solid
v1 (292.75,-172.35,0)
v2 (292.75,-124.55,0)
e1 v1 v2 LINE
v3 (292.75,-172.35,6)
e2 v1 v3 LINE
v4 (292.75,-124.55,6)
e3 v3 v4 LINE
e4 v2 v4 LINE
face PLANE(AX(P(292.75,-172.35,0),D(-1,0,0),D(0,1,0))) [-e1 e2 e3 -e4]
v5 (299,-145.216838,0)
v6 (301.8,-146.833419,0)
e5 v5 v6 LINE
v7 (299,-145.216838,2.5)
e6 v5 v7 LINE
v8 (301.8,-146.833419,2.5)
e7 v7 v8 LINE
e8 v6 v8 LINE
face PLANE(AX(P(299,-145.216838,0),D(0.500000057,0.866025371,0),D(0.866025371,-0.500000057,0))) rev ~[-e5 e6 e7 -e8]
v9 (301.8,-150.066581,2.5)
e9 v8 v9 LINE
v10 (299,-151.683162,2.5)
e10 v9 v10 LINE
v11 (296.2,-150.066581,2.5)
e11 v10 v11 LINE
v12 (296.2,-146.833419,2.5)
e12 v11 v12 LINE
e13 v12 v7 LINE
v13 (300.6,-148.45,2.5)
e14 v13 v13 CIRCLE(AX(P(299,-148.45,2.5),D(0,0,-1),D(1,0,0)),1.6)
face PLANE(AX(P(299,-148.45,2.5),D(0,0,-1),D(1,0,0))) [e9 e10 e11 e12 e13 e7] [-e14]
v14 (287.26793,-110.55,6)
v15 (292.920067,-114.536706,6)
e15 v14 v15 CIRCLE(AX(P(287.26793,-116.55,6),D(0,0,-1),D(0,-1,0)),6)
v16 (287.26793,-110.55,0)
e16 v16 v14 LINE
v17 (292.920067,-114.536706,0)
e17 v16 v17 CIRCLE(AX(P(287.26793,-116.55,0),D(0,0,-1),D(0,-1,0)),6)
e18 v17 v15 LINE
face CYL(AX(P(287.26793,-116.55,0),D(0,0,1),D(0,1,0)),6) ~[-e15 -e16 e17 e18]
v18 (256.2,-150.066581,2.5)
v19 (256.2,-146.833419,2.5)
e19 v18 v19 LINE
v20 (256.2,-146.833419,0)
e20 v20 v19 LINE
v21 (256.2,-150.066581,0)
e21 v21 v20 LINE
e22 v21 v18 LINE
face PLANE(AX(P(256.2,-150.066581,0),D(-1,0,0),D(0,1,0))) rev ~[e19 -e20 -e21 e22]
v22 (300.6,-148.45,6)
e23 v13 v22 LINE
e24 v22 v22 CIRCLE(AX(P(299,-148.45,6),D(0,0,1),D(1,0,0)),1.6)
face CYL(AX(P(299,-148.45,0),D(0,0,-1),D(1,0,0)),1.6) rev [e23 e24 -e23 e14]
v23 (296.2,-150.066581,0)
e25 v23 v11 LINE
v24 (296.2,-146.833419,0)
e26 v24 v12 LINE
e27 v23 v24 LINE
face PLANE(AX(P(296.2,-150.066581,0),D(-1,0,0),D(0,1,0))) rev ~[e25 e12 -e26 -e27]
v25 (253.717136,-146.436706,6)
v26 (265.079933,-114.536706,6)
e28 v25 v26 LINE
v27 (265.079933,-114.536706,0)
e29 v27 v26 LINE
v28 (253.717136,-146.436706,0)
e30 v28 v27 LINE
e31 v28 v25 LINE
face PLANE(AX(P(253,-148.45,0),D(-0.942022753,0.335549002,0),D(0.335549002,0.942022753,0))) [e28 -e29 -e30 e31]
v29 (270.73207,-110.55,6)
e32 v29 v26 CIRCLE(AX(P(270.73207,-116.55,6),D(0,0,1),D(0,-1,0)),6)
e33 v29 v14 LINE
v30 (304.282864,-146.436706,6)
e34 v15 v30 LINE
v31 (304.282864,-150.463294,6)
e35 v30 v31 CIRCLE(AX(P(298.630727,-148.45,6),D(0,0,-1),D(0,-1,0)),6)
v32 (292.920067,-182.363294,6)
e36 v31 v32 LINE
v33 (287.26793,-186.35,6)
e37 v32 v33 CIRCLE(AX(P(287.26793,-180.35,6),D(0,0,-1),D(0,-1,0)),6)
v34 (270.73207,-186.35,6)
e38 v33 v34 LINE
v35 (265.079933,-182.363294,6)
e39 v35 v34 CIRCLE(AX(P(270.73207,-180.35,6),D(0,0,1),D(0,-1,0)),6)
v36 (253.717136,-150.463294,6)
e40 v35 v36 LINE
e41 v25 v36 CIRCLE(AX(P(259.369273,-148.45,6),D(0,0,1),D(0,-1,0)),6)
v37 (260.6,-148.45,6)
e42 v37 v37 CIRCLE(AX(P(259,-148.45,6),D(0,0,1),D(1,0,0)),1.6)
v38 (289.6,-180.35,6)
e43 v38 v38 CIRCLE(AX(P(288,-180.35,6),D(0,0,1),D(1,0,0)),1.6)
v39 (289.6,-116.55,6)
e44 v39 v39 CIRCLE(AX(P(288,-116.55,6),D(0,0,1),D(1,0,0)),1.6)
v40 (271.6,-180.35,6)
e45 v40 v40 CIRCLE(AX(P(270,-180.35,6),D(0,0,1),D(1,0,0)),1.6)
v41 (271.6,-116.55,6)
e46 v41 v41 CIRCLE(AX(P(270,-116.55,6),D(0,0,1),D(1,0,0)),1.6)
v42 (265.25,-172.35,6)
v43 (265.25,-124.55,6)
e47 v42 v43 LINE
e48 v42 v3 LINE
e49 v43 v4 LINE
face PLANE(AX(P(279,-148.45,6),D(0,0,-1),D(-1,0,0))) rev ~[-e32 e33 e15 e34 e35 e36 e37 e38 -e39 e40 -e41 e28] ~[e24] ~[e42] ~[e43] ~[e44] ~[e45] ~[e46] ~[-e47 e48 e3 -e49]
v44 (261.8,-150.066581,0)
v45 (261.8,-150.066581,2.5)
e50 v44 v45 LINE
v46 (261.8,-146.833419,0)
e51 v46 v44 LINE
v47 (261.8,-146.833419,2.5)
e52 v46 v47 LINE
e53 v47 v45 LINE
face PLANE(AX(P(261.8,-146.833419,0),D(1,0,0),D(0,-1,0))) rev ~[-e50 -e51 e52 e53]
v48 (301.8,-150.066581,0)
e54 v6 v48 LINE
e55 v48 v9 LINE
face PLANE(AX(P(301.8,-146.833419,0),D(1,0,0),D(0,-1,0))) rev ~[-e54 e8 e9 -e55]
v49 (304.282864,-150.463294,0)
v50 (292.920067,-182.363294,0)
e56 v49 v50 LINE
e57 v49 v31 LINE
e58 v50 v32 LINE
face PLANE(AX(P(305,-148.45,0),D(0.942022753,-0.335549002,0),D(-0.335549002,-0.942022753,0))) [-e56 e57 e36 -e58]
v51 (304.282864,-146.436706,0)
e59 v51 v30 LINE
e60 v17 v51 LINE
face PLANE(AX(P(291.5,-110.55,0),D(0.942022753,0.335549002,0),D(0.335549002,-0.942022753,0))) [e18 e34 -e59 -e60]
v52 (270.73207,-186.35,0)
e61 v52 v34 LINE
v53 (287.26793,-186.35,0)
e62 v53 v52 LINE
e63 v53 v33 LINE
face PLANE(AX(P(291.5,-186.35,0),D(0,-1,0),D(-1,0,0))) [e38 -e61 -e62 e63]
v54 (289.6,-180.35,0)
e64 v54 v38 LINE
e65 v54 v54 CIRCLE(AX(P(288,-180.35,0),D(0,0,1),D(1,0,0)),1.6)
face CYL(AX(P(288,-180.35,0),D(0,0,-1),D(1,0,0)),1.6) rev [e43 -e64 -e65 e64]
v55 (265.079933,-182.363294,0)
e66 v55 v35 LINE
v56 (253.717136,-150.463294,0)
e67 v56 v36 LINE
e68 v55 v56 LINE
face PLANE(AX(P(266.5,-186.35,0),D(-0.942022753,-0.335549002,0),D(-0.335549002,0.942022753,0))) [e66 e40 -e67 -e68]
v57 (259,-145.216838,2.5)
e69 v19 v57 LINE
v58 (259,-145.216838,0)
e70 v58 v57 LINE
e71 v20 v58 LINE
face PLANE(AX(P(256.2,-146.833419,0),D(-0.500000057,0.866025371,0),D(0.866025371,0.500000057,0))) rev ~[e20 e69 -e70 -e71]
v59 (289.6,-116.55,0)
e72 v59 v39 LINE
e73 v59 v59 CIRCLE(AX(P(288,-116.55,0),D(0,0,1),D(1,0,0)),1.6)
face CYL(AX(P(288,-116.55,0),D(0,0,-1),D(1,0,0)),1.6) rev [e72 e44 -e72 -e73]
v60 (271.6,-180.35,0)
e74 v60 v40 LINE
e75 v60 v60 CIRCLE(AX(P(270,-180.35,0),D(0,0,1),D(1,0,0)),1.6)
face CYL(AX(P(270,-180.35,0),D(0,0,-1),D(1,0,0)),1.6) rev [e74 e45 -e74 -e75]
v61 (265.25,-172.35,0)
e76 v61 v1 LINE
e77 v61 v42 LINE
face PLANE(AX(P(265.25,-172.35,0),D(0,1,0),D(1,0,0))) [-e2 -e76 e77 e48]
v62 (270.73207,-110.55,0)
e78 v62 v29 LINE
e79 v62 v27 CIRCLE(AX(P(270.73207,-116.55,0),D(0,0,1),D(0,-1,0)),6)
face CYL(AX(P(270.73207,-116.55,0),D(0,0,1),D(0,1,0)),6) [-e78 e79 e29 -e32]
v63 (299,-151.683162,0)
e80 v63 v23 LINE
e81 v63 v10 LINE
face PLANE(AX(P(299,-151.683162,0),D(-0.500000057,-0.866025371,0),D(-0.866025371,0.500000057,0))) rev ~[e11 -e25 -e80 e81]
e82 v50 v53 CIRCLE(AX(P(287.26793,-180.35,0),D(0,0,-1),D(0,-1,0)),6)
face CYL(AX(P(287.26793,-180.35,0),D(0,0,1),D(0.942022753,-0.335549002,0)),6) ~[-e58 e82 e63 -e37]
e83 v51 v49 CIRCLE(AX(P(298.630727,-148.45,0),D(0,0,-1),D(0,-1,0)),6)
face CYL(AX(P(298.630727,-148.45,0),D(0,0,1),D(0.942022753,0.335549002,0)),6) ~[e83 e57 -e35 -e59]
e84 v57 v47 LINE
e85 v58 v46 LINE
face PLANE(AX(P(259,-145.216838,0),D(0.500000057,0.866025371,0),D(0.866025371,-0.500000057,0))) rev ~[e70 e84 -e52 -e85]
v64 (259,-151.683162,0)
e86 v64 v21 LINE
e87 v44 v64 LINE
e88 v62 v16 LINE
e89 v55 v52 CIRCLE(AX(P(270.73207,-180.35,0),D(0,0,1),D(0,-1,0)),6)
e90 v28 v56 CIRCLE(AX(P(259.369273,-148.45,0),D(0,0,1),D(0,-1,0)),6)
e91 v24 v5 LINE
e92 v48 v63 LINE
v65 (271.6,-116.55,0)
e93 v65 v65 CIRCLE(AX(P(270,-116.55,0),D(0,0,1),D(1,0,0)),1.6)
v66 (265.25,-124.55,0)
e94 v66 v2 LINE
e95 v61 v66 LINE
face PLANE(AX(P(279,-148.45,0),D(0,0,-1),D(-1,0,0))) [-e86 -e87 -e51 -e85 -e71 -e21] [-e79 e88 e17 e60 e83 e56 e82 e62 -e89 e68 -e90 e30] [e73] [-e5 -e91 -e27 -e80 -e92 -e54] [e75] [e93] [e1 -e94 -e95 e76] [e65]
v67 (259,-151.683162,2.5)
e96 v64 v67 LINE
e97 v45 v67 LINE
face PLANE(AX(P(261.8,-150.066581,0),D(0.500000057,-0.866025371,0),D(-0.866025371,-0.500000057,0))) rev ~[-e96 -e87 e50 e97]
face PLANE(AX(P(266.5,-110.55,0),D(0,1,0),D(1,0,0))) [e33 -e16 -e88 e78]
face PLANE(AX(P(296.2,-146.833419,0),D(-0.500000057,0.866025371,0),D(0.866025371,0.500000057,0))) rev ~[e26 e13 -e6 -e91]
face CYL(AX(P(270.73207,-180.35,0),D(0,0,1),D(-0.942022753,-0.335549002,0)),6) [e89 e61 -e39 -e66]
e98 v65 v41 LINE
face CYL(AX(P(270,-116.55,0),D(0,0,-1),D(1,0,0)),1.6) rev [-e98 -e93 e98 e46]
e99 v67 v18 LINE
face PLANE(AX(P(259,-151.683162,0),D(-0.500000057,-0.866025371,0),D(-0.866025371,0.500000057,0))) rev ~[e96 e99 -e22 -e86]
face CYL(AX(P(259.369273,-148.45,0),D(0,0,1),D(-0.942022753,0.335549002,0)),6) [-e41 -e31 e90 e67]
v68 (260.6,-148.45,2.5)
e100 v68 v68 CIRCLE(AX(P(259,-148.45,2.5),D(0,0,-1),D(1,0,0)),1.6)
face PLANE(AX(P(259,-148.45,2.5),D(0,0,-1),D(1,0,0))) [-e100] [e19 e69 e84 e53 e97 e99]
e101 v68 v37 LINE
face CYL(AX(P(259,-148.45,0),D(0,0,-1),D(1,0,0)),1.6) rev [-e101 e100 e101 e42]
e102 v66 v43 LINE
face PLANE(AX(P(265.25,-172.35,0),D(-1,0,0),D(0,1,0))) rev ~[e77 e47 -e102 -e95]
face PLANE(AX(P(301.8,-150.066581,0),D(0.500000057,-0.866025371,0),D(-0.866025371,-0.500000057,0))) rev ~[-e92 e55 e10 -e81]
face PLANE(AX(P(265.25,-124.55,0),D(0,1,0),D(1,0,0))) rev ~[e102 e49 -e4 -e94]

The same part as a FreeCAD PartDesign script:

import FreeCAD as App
import Part
import Sketcher
Q = App.Units.Quantity


def edges_at(feature, points):
    """Names of the edges that pass closest to the given points."""
    edges = feature.Shape.Edges
    near = lambda p: min(range(len(edges)), key=lambda i: edges[i].distToShape(Part.Vertex(*p))[0])
    return sorted({f"Edge{near(p) + 1}" for p in points})

doc = App.newDocument("Part")
body = doc.addObject("PartDesign::Body", "Body")

# Sketch on XY plane
sketch1 = doc.addObject("Sketcher::SketchObject", "Sketch")
body.addObject(sketch1)
sketch1.AttachmentSupport = (doc.XY_Plane, [""])
sketch1.MapMode = "FlatFace"
sketch1.addGeometry([
    Part.LineSegment(App.Vector(291.5, -110.5, 0), App.Vector(266.5, -110.5, 0)),  # 0
    Part.LineSegment(App.Vector(266.5, -110.5, 0), App.Vector(253, -148.4, 0)),  # 1
    Part.LineSegment(App.Vector(253, -148.4, 0), App.Vector(266.5, -186.3, 0)),  # 2
    Part.LineSegment(App.Vector(266.5, -186.3, 0), App.Vector(291.5, -186.3, 0)),  # 3
    Part.LineSegment(App.Vector(291.5, -186.3, 0), App.Vector(305, -148.4, 0)),  # 4
    Part.LineSegment(App.Vector(305, -148.4, 0), App.Vector(291.5, -110.5, 0)),  # 5
    Part.Circle(App.Vector(288, -180.3, 0), App.Vector(0, 0, 1), 1.6),  # 6
    Part.Circle(App.Vector(270, -180.3, 0), App.Vector(0, 0, 1), 1.6),  # 7
    Part.Circle(App.Vector(299, -148.4, 0), App.Vector(0, 0, 1), 1.6),  # 8
    Part.Circle(App.Vector(288, -116.5, 0), App.Vector(0, 0, 1), 1.6),  # 9
    Part.LineSegment(App.Vector(265.2, -172.3, 0), App.Vector(265.2, -124.5, 0)),  # 10
    Part.LineSegment(App.Vector(265.2, -124.5, 0), App.Vector(292.8, -124.5, 0)),  # 11
    Part.LineSegment(App.Vector(292.8, -124.5, 0), App.Vector(292.8, -172.3, 0)),  # 12
    Part.LineSegment(App.Vector(292.8, -172.3, 0), App.Vector(265.2, -172.3, 0)),  # 13
    Part.Circle(App.Vector(259, -148.4, 0), App.Vector(0, 0, 1), 1.6),  # 14
    Part.Circle(App.Vector(270, -116.5, 0), App.Vector(0, 0, 1), 1.6),  # 15
], False)
sketch1.addConstraint([
    Sketcher.Constraint("Coincident", 0, 2, 1, 1),
    Sketcher.Constraint("Coincident", 1, 2, 2, 1),
    Sketcher.Constraint("Coincident", 2, 2, 3, 1),
    Sketcher.Constraint("Coincident", 3, 2, 4, 1),
    Sketcher.Constraint("Coincident", 4, 2, 5, 1),
    Sketcher.Constraint("Coincident", 5, 2, 0, 1),
    Sketcher.Constraint("Coincident", 10, 2, 11, 1),
    Sketcher.Constraint("Coincident", 11, 2, 12, 1),
    Sketcher.Constraint("Coincident", 12, 2, 13, 1),
    Sketcher.Constraint("Coincident", 13, 2, 10, 1),
    Sketcher.Constraint("Horizontal", 0),
    Sketcher.Constraint("Horizontal", 3),
    Sketcher.Constraint("Vertical", 10),
    Sketcher.Constraint("Horizontal", 11),
    Sketcher.Constraint("Vertical", 12),
    Sketcher.Constraint("Horizontal", 13),
    Sketcher.Constraint("Equal", 6, 7),
    Sketcher.Constraint("Equal", 7, 8),
    Sketcher.Constraint("Equal", 8, 9),
    Sketcher.Constraint("Equal", 9, 14),
    Sketcher.Constraint("Equal", 14, 15),
    Sketcher.Constraint("Parallel", 1, 4),
    Sketcher.Constraint("Parallel", 2, 5),
    Sketcher.Constraint("Horizontal", 6, 3, 7, 3),
    Sketcher.Constraint("Horizontal", 8, 3, 14, 3),
    Sketcher.Constraint("Horizontal", 9, 3, 15, 3),
    Sketcher.Constraint("Horizontal", 14, 3, 1, 2),
    Sketcher.Constraint("Horizontal", 1, 2, 4, 2),
    Sketcher.Constraint("Vertical", 6, 3, 9, 3),
    Sketcher.Constraint("Vertical", 7, 3, 15, 3),
    Sketcher.Constraint("Vertical", 0, 2, 2, 2),
    Sketcher.Constraint("Vertical", 3, 2, 5, 2),
    Sketcher.Constraint("Diameter", 6, Q("3.2 mm")),
    Sketcher.Constraint("DistanceX", 0, 2, 0, 1, Q("25 mm")),
    Sketcher.Constraint("DistanceX", 11, 1, 11, 2, Q("27.5 mm")),
    Sketcher.Constraint("DistanceY", 10, 1, 10, 2, Q("47.8 mm")),
    Sketcher.Constraint("DistanceX", -1, 1, 6, 3, Q("288 mm")),
    Sketcher.Constraint("DistanceX", -1, 1, 7, 3, Q("270 mm")),
    Sketcher.Constraint("DistanceX", -1, 1, 8, 3, Q("299 mm")),
    Sketcher.Constraint("DistanceX", -1, 1, 14, 3, Q("259 mm")),
    Sketcher.Constraint("DistanceX", -1, 1, 1, 2, Q("253 mm")),
    Sketcher.Constraint("DistanceX", -1, 1, 4, 2, Q("305 mm")),
    Sketcher.Constraint("DistanceY", 15, 3, 0, 2, Q("6 mm")),
    Sketcher.Constraint("DistanceY", 2, 2, 7, 3, Q("6 mm")),
    Sketcher.Constraint("DistanceY", 10, 2, 15, 3, Q("8 mm")),
    Sketcher.Constraint("DistanceY", 6, 3, 12, 2, Q("8 mm")),
    Sketcher.Constraint("DistanceY", 6, 3, -1, 1, Q("180.35 mm")),
    Sketcher.Constraint("DistanceX", -1, 1, 10, 2, Q("265.25 mm")),
])
pad1 = doc.addObject("PartDesign::Pad", "Pad")
body.addObject(pad1)
pad1.Profile = sketch1
pad1.Length = 6

# Sketch on XY plane
sketch2 = doc.addObject("Sketcher::SketchObject", "Sketch001")
body.addObject(sketch2)
sketch2.AttachmentSupport = (doc.XY_Plane, [""])
sketch2.MapMode = "FlatFace"
sketch2.addGeometry([
    Part.LineSegment(App.Vector(261.8, -146.8, 0), App.Vector(261.8, -150.1, 0)),  # 0
    Part.LineSegment(App.Vector(261.8, -150.1, 0), App.Vector(259, -151.7, 0)),  # 1
    Part.LineSegment(App.Vector(259, -151.7, 0), App.Vector(256.2, -150.1, 0)),  # 2
    Part.LineSegment(App.Vector(256.2, -150.1, 0), App.Vector(256.2, -146.8, 0)),  # 3
    Part.LineSegment(App.Vector(256.2, -146.8, 0), App.Vector(259, -145.2, 0)),  # 4
    Part.LineSegment(App.Vector(259, -145.2, 0), App.Vector(261.8, -146.8, 0)),  # 5
    Part.LineSegment(App.Vector(301.8, -146.8, 0), App.Vector(301.8, -150.1, 0)),  # 6
    Part.LineSegment(App.Vector(301.8, -150.1, 0), App.Vector(299, -151.7, 0)),  # 7
    Part.LineSegment(App.Vector(299, -151.7, 0), App.Vector(296.2, -150.1, 0)),  # 8
    Part.LineSegment(App.Vector(296.2, -150.1, 0), App.Vector(296.2, -146.8, 0)),  # 9
    Part.LineSegment(App.Vector(296.2, -146.8, 0), App.Vector(299, -145.2, 0)),  # 10
    Part.LineSegment(App.Vector(299, -145.2, 0), App.Vector(301.8, -146.8, 0)),  # 11
], False)
sketch2.addConstraint([
    Sketcher.Constraint("Coincident", 0, 2, 1, 1),
    Sketcher.Constraint("Coincident", 1, 2, 2, 1),
    Sketcher.Constraint("Coincident", 2, 2, 3, 1),
    Sketcher.Constraint("Coincident", 3, 2, 4, 1),
    Sketcher.Constraint("Coincident", 4, 2, 5, 1),
    Sketcher.Constraint("Coincident", 5, 2, 0, 1),
    Sketcher.Constraint("Coincident", 6, 2, 7, 1),
    Sketcher.Constraint("Coincident", 7, 2, 8, 1),
    Sketcher.Constraint("Coincident", 8, 2, 9, 1),
    Sketcher.Constraint("Coincident", 9, 2, 10, 1),
    Sketcher.Constraint("Coincident", 10, 2, 11, 1),
    Sketcher.Constraint("Coincident", 11, 2, 6, 1),
    Sketcher.Constraint("Vertical", 0),
    Sketcher.Constraint("Vertical", 3),
    Sketcher.Constraint("Vertical", 6),
    Sketcher.Constraint("Vertical", 9),
    Sketcher.Constraint("Parallel", 1, 4),
    Sketcher.Constraint("Parallel", 2, 5),
    Sketcher.Constraint("Parallel", 4, 7),
    Sketcher.Constraint("Parallel", 5, 8),
    Sketcher.Constraint("Parallel", 7, 10),
    Sketcher.Constraint("Parallel", 8, 11),
    Sketcher.Constraint("Horizontal", 0, 2, 2, 2),
    Sketcher.Constraint("Horizontal", 3, 2, 5, 2),
    Sketcher.Constraint("Horizontal", 2, 2, 6, 2),
    Sketcher.Constraint("Horizontal", 1, 2, 7, 2),
    Sketcher.Constraint("Horizontal", 6, 2, 8, 2),
    Sketcher.Constraint("Horizontal", 5, 2, 9, 2),
    Sketcher.Constraint("Horizontal", 4, 2, 10, 2),
    Sketcher.Constraint("Vertical", 1, 2, 4, 2),
    Sketcher.Constraint("Angle", 1, Q("-149.999996 deg")),
    Sketcher.Constraint("DistanceX", -1, 1, 1, 2, Q("259 mm")),
    Sketcher.Constraint("DistanceX", -1, 1, 7, 2, Q("299 mm")),
    Sketcher.Constraint("DistanceX", -1, 1, 0, 2, Q("261.8 mm")),
    Sketcher.Constraint("DistanceY", 0, 2, 0, 1, Q("3.233162 mm")),
    Sketcher.Constraint("DistanceY", 0, 2, -1, 1, Q("150.066581 mm")),
])
pocket1 = doc.addObject("PartDesign::Pocket", "Pocket")
body.addObject(pocket1)
pocket1.Profile = sketch2
pocket1.Length = 2.5
pocket1.Reversed = True
doc.recompute()

fillet = doc.addObject("PartDesign::Fillet", "Fillet")
body.addObject(fillet)
fillet.Base = (pocket1, edges_at(pocket1, [
    (291.5, -110.55, 3),
    (266.5, -110.55, 3),
    (253, -148.45, 3),
    (266.5, -186.35, 3),
    (291.5, -186.35, 3),
    (305, -148.45, 3),
]))
fillet.Radius = 6

doc.recompute()
